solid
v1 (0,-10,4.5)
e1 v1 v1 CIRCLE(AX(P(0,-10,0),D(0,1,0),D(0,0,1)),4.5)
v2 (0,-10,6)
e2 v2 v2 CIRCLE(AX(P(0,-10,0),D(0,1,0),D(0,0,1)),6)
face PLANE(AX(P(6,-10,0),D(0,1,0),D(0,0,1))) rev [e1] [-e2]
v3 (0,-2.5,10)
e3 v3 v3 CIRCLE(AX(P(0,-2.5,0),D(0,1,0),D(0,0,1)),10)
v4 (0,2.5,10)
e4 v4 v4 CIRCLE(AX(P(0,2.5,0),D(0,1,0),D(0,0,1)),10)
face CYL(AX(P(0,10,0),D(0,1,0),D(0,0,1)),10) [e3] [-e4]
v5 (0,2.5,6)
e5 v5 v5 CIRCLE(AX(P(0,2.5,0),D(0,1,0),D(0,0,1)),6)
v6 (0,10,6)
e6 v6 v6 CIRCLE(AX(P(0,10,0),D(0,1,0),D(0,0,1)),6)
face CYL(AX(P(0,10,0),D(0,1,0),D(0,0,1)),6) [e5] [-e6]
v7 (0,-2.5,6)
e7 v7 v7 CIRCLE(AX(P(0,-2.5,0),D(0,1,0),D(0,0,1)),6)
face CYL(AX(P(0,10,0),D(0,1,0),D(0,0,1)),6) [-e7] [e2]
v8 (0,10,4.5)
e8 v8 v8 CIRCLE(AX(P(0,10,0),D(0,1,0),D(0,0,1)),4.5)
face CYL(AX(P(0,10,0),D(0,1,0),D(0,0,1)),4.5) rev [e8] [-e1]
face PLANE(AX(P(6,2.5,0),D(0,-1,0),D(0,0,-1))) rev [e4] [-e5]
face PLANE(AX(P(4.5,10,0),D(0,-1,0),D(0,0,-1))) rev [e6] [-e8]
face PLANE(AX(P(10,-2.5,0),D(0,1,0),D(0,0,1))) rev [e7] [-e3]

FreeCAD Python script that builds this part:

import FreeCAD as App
import Part
import Sketcher


def add_polygon(sketch, points):
    """Adds a closed chain of lines whose ends are joined by coincident constraints."""
    first, n = sketch.GeometryCount, len(points)
    for a, b in zip(points, points[1:] + points[:1]):
        sketch.addGeometry(Part.LineSegment(App.Vector(*a, 0), App.Vector(*b, 0)), False)
    for i in range(n):
        sketch.addConstraint(Sketcher.Constraint("Coincident", first + i, 2, first + (i + 1) % n, 1))

doc = App.newDocument("Part")
body = doc.addObject("PartDesign::Body", "Body")

# Sketch on XY plane
sketch1 = body.newObject("Sketcher::SketchObject", "Sketch")
sketch1.AttachmentSupport = (doc.getObject("XY_Plane"), [""])
sketch1.MapMode = "FlatFace"
add_polygon(sketch1, [(6, 10), (4.5, 10), (4.5, -10), (6, -10), (6, -2.5), (10, -2.5), (10, 2.5), (6, 2.5)])  # lines 0-7
sketch1.addConstraint([
    Sketcher.Constraint("Horizontal", 0),
    Sketcher.Constraint("Vertical", 1),
    Sketcher.Constraint("Horizontal", 2),
    Sketcher.Constraint("Vertical", 3),
    Sketcher.Constraint("Horizontal", 4),
    Sketcher.Constraint("Vertical", 5),
    Sketcher.Constraint("Horizontal", 6),
    Sketcher.Constraint("Vertical", 7),
    Sketcher.Constraint("Symmetric", 3, 2, 6, 2, -1),
    Sketcher.Constraint("Equal", 3, 7),
    Sketcher.Constraint("DistanceX", 4, 1, 4, 2, 4.0),
    Sketcher.Constraint("DistanceY", 1, 2, 1, 1, 20.0),
    Sketcher.Constraint("DistanceY", 5, 1, 5, 2, 5.0),
    Sketcher.Constraint("DistanceX", 0, 2, 0, 1, 1.5),
    Sketcher.Constraint("DistanceX", -1, 1, 2, 2, 6.0),
])
revolution = body.newObject("PartDesign::Revolution", "Revolution")
revolution.Profile = sketch1
revolution.ReferenceAxis = (sketch1, ["V_Axis"])
revolution.Angle = 360

doc.recompute()
